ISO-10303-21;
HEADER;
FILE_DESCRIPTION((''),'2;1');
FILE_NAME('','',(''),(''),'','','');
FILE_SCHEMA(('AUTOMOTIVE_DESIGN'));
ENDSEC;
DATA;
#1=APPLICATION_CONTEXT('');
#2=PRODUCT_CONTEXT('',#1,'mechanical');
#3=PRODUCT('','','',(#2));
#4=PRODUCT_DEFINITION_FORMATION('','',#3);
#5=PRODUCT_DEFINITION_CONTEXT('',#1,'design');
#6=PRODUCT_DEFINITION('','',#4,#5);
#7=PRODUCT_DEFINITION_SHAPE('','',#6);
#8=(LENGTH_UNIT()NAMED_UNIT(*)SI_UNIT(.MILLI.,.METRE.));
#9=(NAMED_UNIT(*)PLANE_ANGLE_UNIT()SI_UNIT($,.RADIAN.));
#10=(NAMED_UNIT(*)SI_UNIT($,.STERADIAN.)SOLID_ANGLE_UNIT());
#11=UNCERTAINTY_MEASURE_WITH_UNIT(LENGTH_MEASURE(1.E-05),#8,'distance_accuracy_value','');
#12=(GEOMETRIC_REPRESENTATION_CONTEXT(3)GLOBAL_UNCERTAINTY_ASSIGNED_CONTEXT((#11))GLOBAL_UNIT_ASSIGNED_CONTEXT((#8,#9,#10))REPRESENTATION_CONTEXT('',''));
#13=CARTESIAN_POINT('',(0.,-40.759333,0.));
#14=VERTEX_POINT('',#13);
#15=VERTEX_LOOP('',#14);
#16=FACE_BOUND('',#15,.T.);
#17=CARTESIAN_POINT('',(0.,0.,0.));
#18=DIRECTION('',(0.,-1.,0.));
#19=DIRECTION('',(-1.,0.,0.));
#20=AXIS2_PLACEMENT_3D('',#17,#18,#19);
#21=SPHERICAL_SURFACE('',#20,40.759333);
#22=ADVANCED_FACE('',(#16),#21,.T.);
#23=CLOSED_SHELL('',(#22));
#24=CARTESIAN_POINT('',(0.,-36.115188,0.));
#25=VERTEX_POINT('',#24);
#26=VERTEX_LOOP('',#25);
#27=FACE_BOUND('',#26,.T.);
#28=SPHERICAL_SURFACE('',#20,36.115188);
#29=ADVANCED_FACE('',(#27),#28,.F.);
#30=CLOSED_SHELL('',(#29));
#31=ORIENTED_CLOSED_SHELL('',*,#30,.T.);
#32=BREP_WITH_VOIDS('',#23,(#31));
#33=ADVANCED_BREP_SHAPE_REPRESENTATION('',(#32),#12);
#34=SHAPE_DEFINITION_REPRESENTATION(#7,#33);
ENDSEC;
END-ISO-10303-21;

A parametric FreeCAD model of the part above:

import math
import FreeCAD as App
import Part
import Sketcher

V = App.Vector

doc = App.newDocument("Part")
params = doc.addObject("Spreadsheet::Sheet", "Params")
for row, (alias, value) in enumerate([
    ("revolution_angle", "360 deg"),
], start=1):
    params.set(f"A{row}", alias)
    params.set(f"B{row}", "=" + value)
    params.setAlias(f"B{row}", alias)

body = doc.addObject("PartDesign::Body", "Body")

sketch1 = body.newObject("Sketcher::SketchObject", "Sketch")
sketch1.AttachmentSupport = (doc.getObject("XY_Plane"), [""])
sketch1.MapMode = "FlatFace"
sketch1.addGeometry(Part.LineSegment(V(0, 40.8, 0), V(0, 36.1, 0)), False)
sketch1.addGeometry(Part.ArcOfCircle(Part.Circle(V(0, 0, 0), V(0, 0, 1), 36.1), math.radians(-90), math.radians(90)), False)
sketch1.addGeometry(Part.LineSegment(V(0, -36.1, 0), V(0, -40.8, 0)), False)
sketch1.addGeometry(Part.ArcOfCircle(Part.Circle(V(0, 0, 0), V(0, 0, 1), 40.8), math.radians(-90), math.radians(90)), False)
sketch1.addConstraint(Sketcher.Constraint("Coincident", 0, 2, 1, 2))
sketch1.addConstraint(Sketcher.Constraint("Coincident", 1, 1, 2, 1))
sketch1.addConstraint(Sketcher.Constraint("Coincident", 2, 2, 3, 1))
sketch1.addConstraint(Sketcher.Constraint("Coincident", 3, 2, 0, 1))
sketch1.addConstraint(Sketcher.Constraint("Vertical", 0))
sketch1.addConstraint(Sketcher.Constraint("Vertical", 2))
sketch1.addConstraint(Sketcher.Constraint("Coincident", 1, 3, -1, 1))
sketch1.addConstraint(Sketcher.Constraint("Coincident", 3, 3, -1, 1))
sketch1.addConstraint(Sketcher.Constraint("PointOnObject", 0, 2, -2))
sketch1.addConstraint(Sketcher.Constraint("PointOnObject", 1, 1, -2))
sketch1.addConstraint(Sketcher.Constraint("Radius", 1, 36.115188))
sketch1.addConstraint(Sketcher.Constraint("Radius", 3, 40.759333))
revolution = body.newObject("PartDesign::Revolution", "Revolution")
revolution.Profile = sketch1
revolution.ReferenceAxis = (sketch1, ["V_Axis"])
revolution.setExpression("Angle", "Params.revolution_angle")

doc.recompute()
